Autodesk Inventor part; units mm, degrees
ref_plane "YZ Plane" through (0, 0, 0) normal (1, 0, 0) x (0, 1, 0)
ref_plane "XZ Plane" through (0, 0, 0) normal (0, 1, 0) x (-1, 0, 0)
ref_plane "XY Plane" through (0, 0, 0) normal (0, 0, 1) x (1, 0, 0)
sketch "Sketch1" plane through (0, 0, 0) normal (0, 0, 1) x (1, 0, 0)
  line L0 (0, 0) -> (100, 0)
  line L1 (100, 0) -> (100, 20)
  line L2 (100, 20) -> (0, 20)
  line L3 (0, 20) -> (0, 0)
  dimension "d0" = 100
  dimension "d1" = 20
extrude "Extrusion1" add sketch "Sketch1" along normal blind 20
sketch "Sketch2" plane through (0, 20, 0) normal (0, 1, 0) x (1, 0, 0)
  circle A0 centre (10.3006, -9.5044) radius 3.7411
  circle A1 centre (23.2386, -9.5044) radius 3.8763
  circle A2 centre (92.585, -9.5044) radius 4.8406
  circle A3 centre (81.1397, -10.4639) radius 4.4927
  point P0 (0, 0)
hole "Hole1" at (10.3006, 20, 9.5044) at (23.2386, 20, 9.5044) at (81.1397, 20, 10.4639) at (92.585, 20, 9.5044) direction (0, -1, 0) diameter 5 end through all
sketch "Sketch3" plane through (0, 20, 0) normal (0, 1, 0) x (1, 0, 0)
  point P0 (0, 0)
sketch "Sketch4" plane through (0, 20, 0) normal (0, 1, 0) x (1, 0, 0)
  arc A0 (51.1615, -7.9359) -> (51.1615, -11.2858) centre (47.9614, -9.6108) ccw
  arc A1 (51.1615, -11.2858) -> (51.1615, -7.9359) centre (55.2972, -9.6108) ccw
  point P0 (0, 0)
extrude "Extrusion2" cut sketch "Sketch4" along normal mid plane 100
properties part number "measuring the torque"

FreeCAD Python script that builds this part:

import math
import FreeCAD as App
import Part
import Sketcher

V = App.Vector


def add_polygon(sketch, points):
    """Adds a closed chain of lines whose ends are joined by coincident constraints."""
    first, n = sketch.GeometryCount, len(points)
    for a, b in zip(points, points[1:] + points[:1]):
        sketch.addGeometry(Part.LineSegment(App.Vector(*a, 0), App.Vector(*b, 0)), False)
    for i in range(n):
        sketch.addConstraint(Sketcher.Constraint("Coincident", first + i, 2, first + (i + 1) % n, 1))

doc = App.newDocument("Part")
body = doc.addObject("PartDesign::Body", "Body")

sketch1 = body.newObject("Sketcher::SketchObject", "Sketch")
sketch1.AttachmentSupport = (doc.getObject("XY_Plane"), [""])
sketch1.MapMode = "FlatFace"
add_polygon(sketch1, [(0, 20), (0, 0), (100, 0), (100, 20)])
sketch1.addConstraint([
    Sketcher.Constraint("Vertical", 0),
    Sketcher.Constraint("Horizontal", 1),
    Sketcher.Constraint("Vertical", 2),
    Sketcher.Constraint("Horizontal", 3),
    Sketcher.Constraint("Coincident", 0, 2, -1, 1),
    Sketcher.Constraint("DistanceX", 1, 1, 1, 2, 100.0),
    Sketcher.Constraint("DistanceY", 0, 2, 0, 1, 20.0),
])
pad1 = body.newObject("PartDesign::Pad", "Pad")
pad1.Profile = sketch1
pad1.Length = 20

sketch2 = body.newObject("Sketcher::SketchObject", "Sketch001")
sketch2.AttachmentSupport = (doc.getObject("XZ_Plane"), [""])
sketch2.MapMode = "FlatFace"
sketch2.AttachmentOffset = App.Placement(V(0, 0, -20), App.Rotation())
sketch2.addGeometry([
    Part.Circle(V(10.3, 9.5, 0), V(0, 0, 1), 2.5),
    Part.Circle(V(23.2, 9.5, 0), V(0, 0, 1), 2.5),
    Part.Circle(V(81.1, 10.5, 0), V(0, 0, 1), 2.5),
    Part.Circle(V(92.6, 9.5, 0), V(0, 0, 1), 2.5),
], False)
sketch2.addConstraint([
    Sketcher.Constraint("Equal", 0, 1),
    Sketcher.Constraint("Equal", 1, 2),
    Sketcher.Constraint("Equal", 2, 3),
    Sketcher.Constraint("Horizontal", 0, 3, 1, 3),
    Sketcher.Constraint("Horizontal", 1, 3, 3, 3),
    Sketcher.Constraint("Diameter", 0, 5.0),
    Sketcher.Constraint("DistanceY", -1, 1, 2, 3, 10.464),
    Sketcher.Constraint("DistanceX", -1, 1, 3, 3, 92.585),
    Sketcher.Constraint("DistanceX", 0, 3, 1, 3, 12.938),
    Sketcher.Constraint("DistanceX", 1, 3, 2, 3, 57.901),
    Sketcher.Constraint("DistanceX", -1, 1, 0, 3, 10.3006),
    Sketcher.Constraint("DistanceY", -1, 1, 0, 3, 9.5044),
])
doc.recompute()
hole = body.newObject("PartDesign::Hole", "Hole")
hole.Profile = sketch2
hole.ThreadType = "None"
hole.Diameter = 5
hole.DepthType = "ThroughAll"
hole.Reversed = True

sketch3 = body.newObject("Sketcher::SketchObject", "Sketch002")
sketch3.AttachmentSupport = (doc.getObject("XZ_Plane"), [""])
sketch3.MapMode = "FlatFace"
sketch3.AttachmentOffset = App.Placement(V(0, 0, -20), App.Rotation())
sketch3.addGeometry([
    Part.ArcOfCircle(Part.Circle(V(55.3, 9.6, 0), V(0, 0, 1), 4.5), math.radians(-158), math.radians(158)),
    Part.ArcOfCircle(Part.Circle(V(48, 9.6, 0), V(0, 0, 1), 3.6), math.radians(28), math.radians(332)),
], False)
sketch3.addConstraint([
    Sketcher.Constraint("Coincident", 0, 1, 1, 2),
    Sketcher.Constraint("Coincident", 1, 1, 0, 2),
    Sketcher.Constraint("Horizontal", 0, 3, 1, 3),
    Sketcher.Constraint("Radius", 0, 4.462),
    Sketcher.Constraint("Radius", 1, 3.612),
    Sketcher.Constraint("DistanceX", 1, 3, 0, 1, 3.2),
    Sketcher.Constraint("DistanceY", -1, 1, 0, 1, 7.936),
    Sketcher.Constraint("DistanceX", -1, 1, 0, 3, 55.2972),
])
pocket1 = body.newObject("PartDesign::Pocket", "Pocket")
pocket1.Profile = sketch3
pocket1.Length = 100
pocket1.Midplane = True

doc.recompute()
